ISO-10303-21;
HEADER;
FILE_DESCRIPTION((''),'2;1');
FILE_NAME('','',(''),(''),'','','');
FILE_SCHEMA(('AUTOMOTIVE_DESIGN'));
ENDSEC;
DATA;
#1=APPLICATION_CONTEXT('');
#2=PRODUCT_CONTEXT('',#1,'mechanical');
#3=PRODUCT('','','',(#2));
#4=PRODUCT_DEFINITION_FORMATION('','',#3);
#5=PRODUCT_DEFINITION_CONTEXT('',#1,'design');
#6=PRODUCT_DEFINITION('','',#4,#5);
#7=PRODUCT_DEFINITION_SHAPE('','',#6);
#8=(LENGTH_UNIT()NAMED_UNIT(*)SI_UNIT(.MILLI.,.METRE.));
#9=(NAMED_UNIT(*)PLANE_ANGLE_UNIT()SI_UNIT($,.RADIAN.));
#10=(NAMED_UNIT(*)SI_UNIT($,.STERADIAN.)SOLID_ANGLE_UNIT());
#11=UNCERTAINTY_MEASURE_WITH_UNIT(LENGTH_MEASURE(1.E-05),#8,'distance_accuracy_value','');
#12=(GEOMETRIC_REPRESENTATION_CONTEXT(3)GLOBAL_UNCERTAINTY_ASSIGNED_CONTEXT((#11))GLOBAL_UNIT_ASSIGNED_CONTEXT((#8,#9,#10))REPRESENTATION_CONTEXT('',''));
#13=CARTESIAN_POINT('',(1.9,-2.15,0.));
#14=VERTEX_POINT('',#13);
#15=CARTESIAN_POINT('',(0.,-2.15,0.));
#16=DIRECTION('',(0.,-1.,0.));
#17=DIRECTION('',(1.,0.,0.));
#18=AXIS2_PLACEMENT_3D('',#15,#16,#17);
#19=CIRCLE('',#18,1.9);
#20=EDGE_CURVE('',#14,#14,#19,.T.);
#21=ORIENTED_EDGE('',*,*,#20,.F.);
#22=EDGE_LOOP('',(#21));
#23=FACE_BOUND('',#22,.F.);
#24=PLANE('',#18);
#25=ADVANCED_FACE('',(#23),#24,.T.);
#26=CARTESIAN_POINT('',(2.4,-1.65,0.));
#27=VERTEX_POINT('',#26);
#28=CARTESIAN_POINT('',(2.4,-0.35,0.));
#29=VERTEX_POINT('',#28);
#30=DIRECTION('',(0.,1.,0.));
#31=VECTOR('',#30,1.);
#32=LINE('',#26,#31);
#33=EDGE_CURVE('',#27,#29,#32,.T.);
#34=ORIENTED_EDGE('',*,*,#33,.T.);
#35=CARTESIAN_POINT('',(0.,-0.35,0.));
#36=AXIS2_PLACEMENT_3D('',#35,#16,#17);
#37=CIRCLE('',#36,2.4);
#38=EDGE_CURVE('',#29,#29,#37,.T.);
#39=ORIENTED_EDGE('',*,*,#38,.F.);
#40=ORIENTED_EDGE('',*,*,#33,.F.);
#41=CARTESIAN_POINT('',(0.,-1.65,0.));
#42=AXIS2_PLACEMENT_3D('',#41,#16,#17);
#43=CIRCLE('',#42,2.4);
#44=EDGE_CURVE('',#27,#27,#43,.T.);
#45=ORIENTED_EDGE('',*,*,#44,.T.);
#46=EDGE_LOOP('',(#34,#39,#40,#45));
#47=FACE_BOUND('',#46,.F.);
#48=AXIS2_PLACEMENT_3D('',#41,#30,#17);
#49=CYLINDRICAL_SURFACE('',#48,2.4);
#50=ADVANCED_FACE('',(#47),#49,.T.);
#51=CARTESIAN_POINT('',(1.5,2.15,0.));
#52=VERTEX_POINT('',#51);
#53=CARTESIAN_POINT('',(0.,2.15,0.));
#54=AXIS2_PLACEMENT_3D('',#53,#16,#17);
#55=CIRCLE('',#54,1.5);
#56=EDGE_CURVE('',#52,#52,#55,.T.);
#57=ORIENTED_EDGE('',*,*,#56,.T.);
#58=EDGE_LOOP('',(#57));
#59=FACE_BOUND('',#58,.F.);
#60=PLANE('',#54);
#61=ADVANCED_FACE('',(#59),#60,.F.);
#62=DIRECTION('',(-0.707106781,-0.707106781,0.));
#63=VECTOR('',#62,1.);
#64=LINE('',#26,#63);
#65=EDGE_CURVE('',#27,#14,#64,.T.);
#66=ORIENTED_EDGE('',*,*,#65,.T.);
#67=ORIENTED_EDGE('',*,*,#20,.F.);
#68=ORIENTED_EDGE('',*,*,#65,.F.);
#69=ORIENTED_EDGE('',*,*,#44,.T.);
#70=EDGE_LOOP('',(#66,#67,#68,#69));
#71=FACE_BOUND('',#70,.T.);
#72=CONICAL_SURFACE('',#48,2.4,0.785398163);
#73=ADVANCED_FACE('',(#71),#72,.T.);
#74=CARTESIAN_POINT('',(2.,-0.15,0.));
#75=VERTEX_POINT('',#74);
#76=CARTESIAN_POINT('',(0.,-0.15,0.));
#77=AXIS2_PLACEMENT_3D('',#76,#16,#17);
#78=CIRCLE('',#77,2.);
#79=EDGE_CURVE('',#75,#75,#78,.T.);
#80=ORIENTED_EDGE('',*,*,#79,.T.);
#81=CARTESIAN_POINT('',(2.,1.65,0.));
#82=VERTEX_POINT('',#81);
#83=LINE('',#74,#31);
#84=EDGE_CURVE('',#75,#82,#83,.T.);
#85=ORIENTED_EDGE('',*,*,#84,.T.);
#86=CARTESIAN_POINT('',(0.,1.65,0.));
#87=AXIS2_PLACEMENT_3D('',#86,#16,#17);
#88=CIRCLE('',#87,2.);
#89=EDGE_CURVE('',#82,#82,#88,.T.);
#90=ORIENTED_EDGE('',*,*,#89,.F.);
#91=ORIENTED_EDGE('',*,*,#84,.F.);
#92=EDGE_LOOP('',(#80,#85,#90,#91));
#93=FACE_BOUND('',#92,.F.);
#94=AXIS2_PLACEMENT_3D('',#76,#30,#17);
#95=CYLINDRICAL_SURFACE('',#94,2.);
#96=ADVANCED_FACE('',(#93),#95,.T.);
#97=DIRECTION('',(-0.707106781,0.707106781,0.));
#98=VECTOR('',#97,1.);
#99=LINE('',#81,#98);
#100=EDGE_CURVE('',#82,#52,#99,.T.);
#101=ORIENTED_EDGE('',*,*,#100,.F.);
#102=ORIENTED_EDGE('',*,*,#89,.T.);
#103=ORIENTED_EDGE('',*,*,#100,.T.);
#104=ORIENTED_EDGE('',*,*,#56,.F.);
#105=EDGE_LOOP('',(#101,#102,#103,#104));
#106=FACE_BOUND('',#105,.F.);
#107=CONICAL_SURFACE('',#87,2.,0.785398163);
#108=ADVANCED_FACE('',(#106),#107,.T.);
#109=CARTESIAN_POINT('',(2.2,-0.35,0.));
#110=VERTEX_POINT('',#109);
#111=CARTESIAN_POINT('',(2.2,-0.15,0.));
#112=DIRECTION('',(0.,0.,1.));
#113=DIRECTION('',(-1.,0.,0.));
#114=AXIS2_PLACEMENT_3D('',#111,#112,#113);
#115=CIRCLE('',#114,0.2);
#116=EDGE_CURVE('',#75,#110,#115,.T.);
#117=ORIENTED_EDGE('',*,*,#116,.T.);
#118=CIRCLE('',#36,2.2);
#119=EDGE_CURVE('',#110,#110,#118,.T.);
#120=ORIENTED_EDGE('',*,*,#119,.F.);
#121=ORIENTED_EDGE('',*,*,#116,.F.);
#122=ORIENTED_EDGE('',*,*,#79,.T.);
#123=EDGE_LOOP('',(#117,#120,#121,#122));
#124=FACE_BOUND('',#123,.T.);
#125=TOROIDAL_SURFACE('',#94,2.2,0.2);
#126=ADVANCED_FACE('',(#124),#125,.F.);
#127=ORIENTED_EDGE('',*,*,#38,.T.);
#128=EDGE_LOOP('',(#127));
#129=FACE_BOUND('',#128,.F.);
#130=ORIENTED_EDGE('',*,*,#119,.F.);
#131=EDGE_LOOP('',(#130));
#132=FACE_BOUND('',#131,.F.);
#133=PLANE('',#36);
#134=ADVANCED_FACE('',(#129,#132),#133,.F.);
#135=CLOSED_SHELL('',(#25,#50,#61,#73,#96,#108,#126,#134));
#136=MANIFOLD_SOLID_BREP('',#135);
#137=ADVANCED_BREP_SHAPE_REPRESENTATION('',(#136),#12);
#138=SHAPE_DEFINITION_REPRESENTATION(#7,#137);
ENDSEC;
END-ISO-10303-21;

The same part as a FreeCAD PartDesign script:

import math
import FreeCAD as App
import Part
import Sketcher
from FreeCAD import Vector
Q = App.Units.Quantity

doc = App.newDocument("Part")
body = doc.addObject("PartDesign::Body", "Body")

# Sketch on XY plane
sketch1 = body.newObject("Sketcher::SketchObject", "Sketch")
sketch1.AttachmentSupport = (doc.getObject("XY_Plane"), [""])
sketch1.MapMode = "FlatFace"
sketch1.addGeometry(Part.LineSegment(Vector(1.5, 2.15, 0), Vector(0, 2.15, 0)), False)
sketch1.addGeometry(Part.LineSegment(Vector(0, 2.15, 0), Vector(0, -2.15, 0)), False)
sketch1.addGeometry(Part.LineSegment(Vector(0, -2.15, 0), Vector(1.9, -2.15, 0)), False)
sketch1.addGeometry(Part.LineSegment(Vector(1.9, -2.15, 0), Vector(2.4, -1.65, 0)), False)
sketch1.addGeometry(Part.LineSegment(Vector(2.4, -1.65, 0), Vector(2.4, -0.35, 0)), False)
sketch1.addGeometry(Part.LineSegment(Vector(2.4, -0.35, 0), Vector(2.2, -0.35, 0)), False)
sketch1.addGeometry(Part.ArcOfCircle(Part.Circle(Vector(2.2, -0.15, 0), Vector(0, 0, 1), 0.2), math.radians(180), math.radians(270)), False)
sketch1.addGeometry(Part.LineSegment(Vector(2, -0.15, 0), Vector(2, 1.65, 0)), False)
sketch1.addGeometry(Part.LineSegment(Vector(2, 1.65, 0), Vector(1.5, 2.15, 0)), False)
sketch1.addConstraint(Sketcher.Constraint("Coincident", 0, 2, 1, 1))
sketch1.addConstraint(Sketcher.Constraint("Coincident", 1, 2, 2, 1))
sketch1.addConstraint(Sketcher.Constraint("Coincident", 2, 2, 3, 1))
sketch1.addConstraint(Sketcher.Constraint("Coincident", 3, 2, 4, 1))
sketch1.addConstraint(Sketcher.Constraint("Coincident", 4, 2, 5, 1))
sketch1.addConstraint(Sketcher.Constraint("Tangent", 5, 2, 6, 2))
sketch1.addConstraint(Sketcher.Constraint("Tangent", 6, 1, 7, 1))
sketch1.addConstraint(Sketcher.Constraint("Coincident", 7, 2, 8, 1))
sketch1.addConstraint(Sketcher.Constraint("Coincident", 8, 2, 0, 1))
sketch1.addConstraint(Sketcher.Constraint("Horizontal", 0))
sketch1.addConstraint(Sketcher.Constraint("Vertical", 1))
sketch1.addConstraint(Sketcher.Constraint("Horizontal", 2))
sketch1.addConstraint(Sketcher.Constraint("Vertical", 4))
sketch1.addConstraint(Sketcher.Constraint("Horizontal", 5))
sketch1.addConstraint(Sketcher.Constraint("Vertical", 7))
sketch1.addConstraint(Sketcher.Constraint("Symmetric", 0, 2, 1, 2, -1, 1))
sketch1.addConstraint(Sketcher.Constraint("Perpendicular", 3, 8))
sketch1.addConstraint(Sketcher.Constraint("Equal", 3, 8))
sketch1.addConstraint(Sketcher.Constraint("Radius", 6, 0.2))
sketch1.addConstraint(Sketcher.Constraint("Angle", 3, Q("45 deg")))
sketch1.addConstraint(Sketcher.Constraint("DistanceX", 5, 2, 5, 1, 0.2))
sketch1.addConstraint(Sketcher.Constraint("DistanceY", 1, 2, 1, 1, 4.3))
sketch1.addConstraint(Sketcher.Constraint("DistanceY", 7, 1, 7, 2, 1.8))
sketch1.addConstraint(Sketcher.Constraint("DistanceX", 2, 2, 3, 2, 0.5))
sketch1.addConstraint(Sketcher.Constraint("DistanceX", 0, 2, 0, 1, 1.5))
revolution = body.newObject("PartDesign::Revolution", "Revolution")
revolution.Profile = sketch1
revolution.ReferenceAxis = (sketch1, ["V_Axis"])
revolution.Angle = 360

doc.recompute()
